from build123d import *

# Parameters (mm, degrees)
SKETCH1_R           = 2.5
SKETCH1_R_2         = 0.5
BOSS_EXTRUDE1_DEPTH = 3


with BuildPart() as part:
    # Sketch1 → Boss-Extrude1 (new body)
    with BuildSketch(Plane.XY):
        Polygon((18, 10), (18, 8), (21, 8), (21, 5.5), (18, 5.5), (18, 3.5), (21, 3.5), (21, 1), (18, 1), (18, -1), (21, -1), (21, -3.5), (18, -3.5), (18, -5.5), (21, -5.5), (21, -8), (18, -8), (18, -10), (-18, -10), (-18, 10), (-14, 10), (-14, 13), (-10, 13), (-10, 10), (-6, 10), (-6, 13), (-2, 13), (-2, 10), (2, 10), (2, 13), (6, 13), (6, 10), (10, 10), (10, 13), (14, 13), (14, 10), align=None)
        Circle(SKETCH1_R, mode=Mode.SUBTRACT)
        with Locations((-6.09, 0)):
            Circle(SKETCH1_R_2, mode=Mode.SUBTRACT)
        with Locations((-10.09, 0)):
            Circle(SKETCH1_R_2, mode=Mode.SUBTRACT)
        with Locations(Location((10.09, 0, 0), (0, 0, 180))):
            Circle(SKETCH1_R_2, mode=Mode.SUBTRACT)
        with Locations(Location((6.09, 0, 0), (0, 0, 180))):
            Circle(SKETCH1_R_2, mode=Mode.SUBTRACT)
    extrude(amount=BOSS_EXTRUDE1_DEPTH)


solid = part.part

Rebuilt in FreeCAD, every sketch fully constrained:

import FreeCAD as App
import Part
import Sketcher
from FreeCAD import Vector

doc = App.newDocument("Part")
body = doc.addObject("PartDesign::Body", "Body")

sketch1 = body.newObject("Sketcher::SketchObject", "Sketch")
sketch1.AttachmentSupport = (doc.getObject("XY_Plane"), [""])
sketch1.MapMode = "FlatFace"
sketch1.addGeometry([
    Part.LineSegment(Vector(18, 8, 0), Vector(18, 10, 0)),
    Part.LineSegment(Vector(18, 10, 0), Vector(14, 10, 0)),
    Part.LineSegment(Vector(14, 10, 0), Vector(14, 13, 0)),
    Part.LineSegment(Vector(14, 13, 0), Vector(10, 13, 0)),
    Part.LineSegment(Vector(10, 13, 0), Vector(10, 10, 0)),
    Part.LineSegment(Vector(10, 10, 0), Vector(6, 10, 0)),
    Part.LineSegment(Vector(6, 10, 0), Vector(6, 13, 0)),
    Part.LineSegment(Vector(6, 13, 0), Vector(2, 13, 0)),
    Part.LineSegment(Vector(2, 13, 0), Vector(2, 10, 0)),
    Part.LineSegment(Vector(2, 10, 0), Vector(-2, 10, 0)),
    Part.LineSegment(Vector(-2, 10, 0), Vector(-2, 13, 0)),
    Part.LineSegment(Vector(-2, 13, 0), Vector(-6, 13, 0)),
    Part.LineSegment(Vector(-6, 13, 0), Vector(-6, 10, 0)),
    Part.LineSegment(Vector(-6, 10, 0), Vector(-10, 10, 0)),
    Part.LineSegment(Vector(-10, 10, 0), Vector(-10, 13, 0)),
    Part.LineSegment(Vector(-10, 13, 0), Vector(-14, 13, 0)),
    Part.LineSegment(Vector(-14, 13, 0), Vector(-14, 10, 0)),
    Part.LineSegment(Vector(-14, 10, 0), Vector(-18, 10, 0)),
    Part.LineSegment(Vector(-18, 10, 0), Vector(-18, -10, 0)),
    Part.LineSegment(Vector(-18, -10, 0), Vector(18, -10, 0)),
    Part.LineSegment(Vector(18, -10, 0), Vector(18, -8, 0)),
    Part.LineSegment(Vector(18, -8, 0), Vector(21, -8, 0)),
    Part.LineSegment(Vector(21, -8, 0), Vector(21, -5.5, 0)),
    Part.LineSegment(Vector(21, -5.5, 0), Vector(18, -5.5, 0)),
    Part.LineSegment(Vector(18, -5.5, 0), Vector(18, -3.5, 0)),
    Part.LineSegment(Vector(18, -3.5, 0), Vector(21, -3.5, 0)),
    Part.LineSegment(Vector(21, -3.5, 0), Vector(21, -1, 0)),
    Part.LineSegment(Vector(21, -1, 0), Vector(18, -1, 0)),
    Part.LineSegment(Vector(18, -1, 0), Vector(18, 1, 0)),
    Part.LineSegment(Vector(18, 1, 0), Vector(21, 1, 0)),
    Part.LineSegment(Vector(21, 1, 0), Vector(21, 3.5, 0)),
    Part.LineSegment(Vector(21, 3.5, 0), Vector(18, 3.5, 0)),
    Part.LineSegment(Vector(18, 3.5, 0), Vector(18, 5.5, 0)),
    Part.LineSegment(Vector(18, 5.5, 0), Vector(21, 5.5, 0)),
    Part.LineSegment(Vector(21, 5.5, 0), Vector(21, 8, 0)),
    Part.LineSegment(Vector(21, 8, 0), Vector(18, 8, 0)),
    Part.Circle(Vector(10.1, 0, 0), Vector(0, 0, 1), 0.5),
    Part.Circle(Vector(6.1, 0, 0), Vector(0, 0, 1), 0.5),
    Part.Circle(Vector(0, 0, 0), Vector(0, 0, 1), 2.5),
    Part.Circle(Vector(-6.1, 0, 0), Vector(0, 0, 1), 0.5),
    Part.Circle(Vector(-10.1, 0, 0), Vector(0, 0, 1), 0.5),
], False)
sketch1.addConstraint([
    Sketcher.Constraint("Coincident", 0, 2, 1, 1),
    Sketcher.Constraint("Coincident", 1, 2, 2, 1),
    Sketcher.Constraint("Coincident", 2, 2, 3, 1),
    Sketcher.Constraint("Coincident", 3, 2, 4, 1),
    Sketcher.Constraint("Coincident", 4, 2, 5, 1),
    Sketcher.Constraint("Coincident", 5, 2, 6, 1),
    Sketcher.Constraint("Coincident", 6, 2, 7, 1),
    Sketcher.Constraint("Coincident", 7, 2, 8, 1),
    Sketcher.Constraint("Coincident", 8, 2, 9, 1),
    Sketcher.Constraint("Coincident", 9, 2, 10, 1),
    Sketcher.Constraint("Coincident", 10, 2, 11, 1),
    Sketcher.Constraint("Coincident", 11, 2, 12, 1),
    Sketcher.Constraint("Coincident", 12, 2, 13, 1),
    Sketcher.Constraint("Coincident", 13, 2, 14, 1),
    Sketcher.Constraint("Coincident", 14, 2, 15, 1),
    Sketcher.Constraint("Coincident", 15, 2, 16, 1),
    Sketcher.Constraint("Coincident", 16, 2, 17, 1),
    Sketcher.Constraint("Coincident", 17, 2, 18, 1),
    Sketcher.Constraint("Coincident", 18, 2, 19, 1),
    Sketcher.Constraint("Coincident", 19, 2, 20, 1),
    Sketcher.Constraint("Coincident", 20, 2, 21, 1),
    Sketcher.Constraint("Coincident", 21, 2, 22, 1),
    Sketcher.Constraint("Coincident", 22, 2, 23, 1),
    Sketcher.Constraint("Coincident", 23, 2, 24, 1),
    Sketcher.Constraint("Coincident", 24, 2, 25, 1),
    Sketcher.Constraint("Coincident", 25, 2, 26, 1),
    Sketcher.Constraint("Coincident", 26, 2, 27, 1),
    Sketcher.Constraint("Coincident", 27, 2, 28, 1),
    Sketcher.Constraint("Coincident", 28, 2, 29, 1),
    Sketcher.Constraint("Coincident", 29, 2, 30, 1),
    Sketcher.Constraint("Coincident", 30, 2, 31, 1),
    Sketcher.Constraint("Coincident", 31, 2, 32, 1),
    Sketcher.Constraint("Coincident", 32, 2, 33, 1),
    Sketcher.Constraint("Coincident", 33, 2, 34, 1),
    Sketcher.Constraint("Coincident", 34, 2, 35, 1),
    Sketcher.Constraint("Coincident", 35, 2, 0, 1),
    Sketcher.Constraint("Vertical", 0),
    Sketcher.Constraint("Horizontal", 1),
    Sketcher.Constraint("Vertical", 2),
    Sketcher.Constraint("Horizontal", 3),
    Sketcher.Constraint("Vertical", 4),
    Sketcher.Constraint("Horizontal", 5),
    Sketcher.Constraint("Vertical", 6),
    Sketcher.Constraint("Horizontal", 7),
    Sketcher.Constraint("Vertical", 8),
    Sketcher.Constraint("Horizontal", 9),
    Sketcher.Constraint("Vertical", 10),
    Sketcher.Constraint("Horizontal", 11),
    Sketcher.Constraint("Vertical", 12),
    Sketcher.Constraint("Horizontal", 13),
    Sketcher.Constraint("Vertical", 14),
    Sketcher.Constraint("Horizontal", 15),
    Sketcher.Constraint("Vertical", 16),
    Sketcher.Constraint("Horizontal", 17),
    Sketcher.Constraint("Vertical", 18),
    Sketcher.Constraint("Horizontal", 19),
    Sketcher.Constraint("Vertical", 20),
    Sketcher.Constraint("Horizontal", 21),
    Sketcher.Constraint("Vertical", 22),
    Sketcher.Constraint("Horizontal", 23),
    Sketcher.Constraint("Vertical", 24),
    Sketcher.Constraint("Horizontal", 25),
    Sketcher.Constraint("Vertical", 26),
    Sketcher.Constraint("Horizontal", 27),
    Sketcher.Constraint("Vertical", 28),
    Sketcher.Constraint("Horizontal", 29),
    Sketcher.Constraint("Vertical", 30),
    Sketcher.Constraint("Horizontal", 31),
    Sketcher.Constraint("Vertical", 32),
    Sketcher.Constraint("Horizontal", 33),
    Sketcher.Constraint("Vertical", 34),
    Sketcher.Constraint("Horizontal", 35),
    Sketcher.Constraint("Coincident", 38, 3, -1, 1),
    Sketcher.Constraint("Equal", 36, 37),
    Sketcher.Constraint("Equal", 37, 39),
    Sketcher.Constraint("Equal", 39, 40),
    Sketcher.Constraint("Symmetric", 37, 3, 39, 3, -1, 1),
    Sketcher.Constraint("Symmetric", 36, 3, 40, 3, -1, 1),
    Sketcher.Constraint("Symmetric", 0, 2, 18, 2, -1, 1),
    Sketcher.Constraint("Symmetric", 17, 2, 19, 2, -1, 1),
    Sketcher.Constraint("Symmetric", 7, 2, 10, 2, -2),
    Sketcher.Constraint("Symmetric", 5, 2, 12, 2, -2),
    Sketcher.Constraint("Symmetric", 3, 2, 14, 2, -2),
    Sketcher.Constraint("Symmetric", 26, 2, 29, 2, -1),
    Sketcher.Constraint("Symmetric", 24, 2, 31, 2, -1),
    Sketcher.Constraint("Symmetric", 22, 2, 33, 2, -1),
    Sketcher.Constraint("PointOnObject", 36, 3, -1),
    Sketcher.Constraint("PointOnObject", 37, 3, -1),
    Sketcher.Constraint("Horizontal", 1, 2, 4, 2),
    Sketcher.Constraint("Horizontal", 3, 2, 6, 2),
    Sketcher.Constraint("Horizontal", 5, 2, 8, 2),
    Sketcher.Constraint("Vertical", 20, 2, 23, 2),
    Sketcher.Constraint("Vertical", 22, 2, 25, 2),
    Sketcher.Constraint("Vertical", 24, 2, 27, 2),
    Sketcher.Constraint("Equal", 1, 3),
    Sketcher.Constraint("Equal", 3, 5),
    Sketcher.Constraint("Equal", 5, 7),
    Sketcher.Constraint("Equal", 7, 9),
    Sketcher.Constraint("Equal", 13, 15),
    Sketcher.Constraint("Equal", 35, 2),
    Sketcher.Constraint("Equal", 0, 20),
    Sketcher.Constraint("Equal", 20, 24),
    Sketcher.Constraint("Equal", 22, 26),
    Sketcher.Constraint("Equal", 24, 28),
    Sketcher.Constraint("Diameter", 36, 1.0),
    Sketcher.Constraint("Diameter", 38, 5.0),
    Sketcher.Constraint("DistanceX", 1, 2, 1, 1, 4.0),
    Sketcher.Constraint("DistanceX", 21, 1, 21, 2, 3.0),
    Sketcher.Constraint("DistanceY", 0, 1, 0, 2, 2.0),
    Sketcher.Constraint("DistanceY", 18, 2, 18, 1, 20.0),
    Sketcher.Constraint("DistanceX", 37, 3, 36, 3, 4.0),
    Sketcher.Constraint("DistanceX", -1, 1, 36, 3, 10.09),
])
pad1 = body.newObject("PartDesign::Pad", "Pad")
pad1.Profile = sketch1
pad1.Length = 3

doc.recompute()
